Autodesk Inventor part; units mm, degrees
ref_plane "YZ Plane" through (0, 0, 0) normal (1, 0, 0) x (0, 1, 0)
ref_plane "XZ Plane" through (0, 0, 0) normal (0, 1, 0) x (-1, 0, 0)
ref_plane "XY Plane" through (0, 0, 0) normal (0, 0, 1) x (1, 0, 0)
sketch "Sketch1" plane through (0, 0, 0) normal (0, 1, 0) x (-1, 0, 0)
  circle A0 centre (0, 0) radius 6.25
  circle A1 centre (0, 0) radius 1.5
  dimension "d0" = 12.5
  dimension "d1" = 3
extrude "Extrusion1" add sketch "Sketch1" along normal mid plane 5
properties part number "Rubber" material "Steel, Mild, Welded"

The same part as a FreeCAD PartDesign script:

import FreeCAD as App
import Part
import Sketcher
Q = App.Units.Quantity

doc = App.newDocument("Part")
body = doc.addObject("PartDesign::Body", "Body")

# Sketch on XZ plane
sketch1 = body.newObject("Sketcher::SketchObject", "Sketch")
sketch1.AttachmentSupport = (doc.getObject("XZ_Plane"), [""])
sketch1.MapMode = "FlatFace"
sketch1.addGeometry([
    Part.Circle(App.Vector(0, 0, 0), App.Vector(0, 0, 1), 6.2),
    Part.Circle(App.Vector(0, 0, 0), App.Vector(0, 0, 1), 1.5),
], False)
sketch1.addConstraint([
    Sketcher.Constraint("Coincident", 0, 3, -1, 1),
    Sketcher.Constraint("Coincident", 1, 3, -1, 1),
    Sketcher.Constraint("Diameter", 1, Q("3 mm")),
    Sketcher.Constraint("Diameter", 0, Q("12.5 mm")),
])
pad1 = body.newObject("PartDesign::Pad", "Pad")
pad1.Profile = sketch1
pad1.Length = 5
pad1.Midplane = True

doc.recompute()
